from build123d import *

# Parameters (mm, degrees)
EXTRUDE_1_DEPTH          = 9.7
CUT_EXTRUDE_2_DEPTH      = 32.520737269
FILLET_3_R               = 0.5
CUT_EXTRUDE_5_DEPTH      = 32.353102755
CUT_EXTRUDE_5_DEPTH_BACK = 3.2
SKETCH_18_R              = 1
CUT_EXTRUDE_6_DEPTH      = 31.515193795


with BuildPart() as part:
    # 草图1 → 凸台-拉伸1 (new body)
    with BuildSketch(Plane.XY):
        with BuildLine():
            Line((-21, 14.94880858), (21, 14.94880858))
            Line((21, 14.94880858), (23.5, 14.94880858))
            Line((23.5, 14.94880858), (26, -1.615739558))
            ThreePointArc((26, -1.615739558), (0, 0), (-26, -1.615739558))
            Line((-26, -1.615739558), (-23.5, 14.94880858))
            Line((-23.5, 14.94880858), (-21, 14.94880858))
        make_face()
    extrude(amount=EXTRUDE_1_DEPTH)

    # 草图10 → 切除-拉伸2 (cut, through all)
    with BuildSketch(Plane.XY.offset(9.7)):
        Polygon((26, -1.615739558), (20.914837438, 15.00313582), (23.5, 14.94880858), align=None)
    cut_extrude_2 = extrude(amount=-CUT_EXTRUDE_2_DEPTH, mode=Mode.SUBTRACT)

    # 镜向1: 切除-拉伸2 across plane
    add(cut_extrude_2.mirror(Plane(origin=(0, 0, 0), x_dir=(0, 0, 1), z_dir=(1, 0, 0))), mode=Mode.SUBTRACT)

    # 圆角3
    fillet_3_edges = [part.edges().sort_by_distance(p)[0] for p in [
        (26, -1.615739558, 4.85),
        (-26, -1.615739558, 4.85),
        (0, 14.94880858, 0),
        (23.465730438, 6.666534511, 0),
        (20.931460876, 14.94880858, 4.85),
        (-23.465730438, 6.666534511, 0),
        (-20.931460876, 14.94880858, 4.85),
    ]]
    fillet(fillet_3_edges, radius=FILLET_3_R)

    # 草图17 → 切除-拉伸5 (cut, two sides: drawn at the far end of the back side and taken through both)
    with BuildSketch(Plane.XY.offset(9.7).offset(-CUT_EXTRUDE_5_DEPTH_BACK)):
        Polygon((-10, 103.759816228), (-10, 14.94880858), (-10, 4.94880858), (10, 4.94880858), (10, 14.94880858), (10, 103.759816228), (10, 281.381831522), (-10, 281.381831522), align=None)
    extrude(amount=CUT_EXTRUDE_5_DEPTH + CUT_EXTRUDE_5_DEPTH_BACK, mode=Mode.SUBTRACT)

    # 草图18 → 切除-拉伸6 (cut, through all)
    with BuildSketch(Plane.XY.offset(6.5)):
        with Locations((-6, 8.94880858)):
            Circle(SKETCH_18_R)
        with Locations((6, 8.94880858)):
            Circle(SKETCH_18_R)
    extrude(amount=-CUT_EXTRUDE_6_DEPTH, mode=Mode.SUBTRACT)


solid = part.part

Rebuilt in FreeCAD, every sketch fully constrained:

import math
import FreeCAD as App
import Part
import Sketcher
from FreeCAD import Vector
Q = App.Units.Quantity


def edges_at(feature, points):
    """Names of the edges that pass closest to the given points."""
    edges = feature.Shape.Edges
    near = lambda p: min(range(len(edges)), key=lambda i: edges[i].distToShape(Part.Vertex(*p))[0])
    return sorted({f"Edge{near(p) + 1}" for p in points})


def add_polygon(sketch, points):
    """Adds a closed chain of lines whose ends are joined by coincident constraints."""
    first, n = sketch.GeometryCount, len(points)
    for a, b in zip(points, points[1:] + points[:1]):
        sketch.addGeometry(Part.LineSegment(App.Vector(*a, 0), App.Vector(*b, 0)), False)
    for i in range(n):
        sketch.addConstraint(Sketcher.Constraint("Coincident", first + i, 2, first + (i + 1) % n, 1))

doc = App.newDocument("Part")
body = doc.addObject("PartDesign::Body", "Body")

# Sketch on XY plane
sketch1 = body.newObject("Sketcher::SketchObject", "Sketch")
sketch1.AttachmentSupport = (doc.getObject("XY_Plane"), [""])
sketch1.MapMode = "FlatFace"
sketch1.addGeometry([
    Part.LineSegment(Vector(26, -1.61574, 0), Vector(23.5, 14.948809, 0)),
    Part.LineSegment(Vector(23.5, 14.948809, 0), Vector(-23.5, 14.948809, 0)),
    Part.LineSegment(Vector(-23.5, 14.948809, 0), Vector(-26, -1.61574, 0)),
    Part.ArcOfCircle(Part.Circle(Vector(0, -210, 0), Vector(0, 0, 1), 210), math.radians(82.887988), math.radians(97.112012)),
], False)
sketch1.addConstraint([
    Sketcher.Constraint("Coincident", 0, 2, 1, 1),
    Sketcher.Constraint("Coincident", 1, 2, 2, 1),
    Sketcher.Constraint("Coincident", 2, 2, 3, 2),
    Sketcher.Constraint("Coincident", 3, 1, 0, 1),
    Sketcher.Constraint("Horizontal", 1),
    Sketcher.Constraint("Symmetric", 2, 2, 3, 1, -2),
    Sketcher.Constraint("Equal", 0, 2),
    Sketcher.Constraint("Radius", 3, Q("210 mm")),
    Sketcher.Constraint("DistanceX", 1, 2, 1, 1, Q("47 mm")),
    Sketcher.Constraint("DistanceY", 3, 3, -1, 1, Q("210 mm")),
    Sketcher.Constraint("DistanceX", 2, 2, -1, 1, Q("26 mm")),
    Sketcher.Constraint("Distance", 0, Q("16.752142 mm")),
])
pad1 = body.newObject("PartDesign::Pad", "Pad")
pad1.Profile = sketch1
pad1.Length = 9.7

# Sketch on XY plane
sketch2 = body.newObject("Sketcher::SketchObject", "Sketch001")
sketch2.AttachmentSupport = (doc.getObject("XY_Plane"), [""])
sketch2.MapMode = "FlatFace"
sketch2.AttachmentOffset = App.Placement(Vector(0, 0, 9.7), App.Rotation())
add_polygon(sketch2, [(20.914837, 15.003136), (26, -1.61574), (23.5, 14.948809)])  # lines 0-2
sketch2.addConstraint([
    Sketcher.Constraint("DistanceX", -1, 1, 0, 2, Q("26 mm")),
    Sketcher.Constraint("DistanceX", -1, 1, 1, 2, Q("23.5 mm")),
    Sketcher.Constraint("Distance", 1, Q("16.752142 mm")),
    Sketcher.Constraint("DistanceY", 0, 2, -1, 1, Q("1.61574 mm")),
    Sketcher.Constraint("Distance", 0, Q("17.379468 mm")),
    Sketcher.Constraint("Distance", 2, Q("2.585733 mm")),
])
pocket1 = body.newObject("PartDesign::Pocket", "Pocket")
pocket1.Profile = sketch2
pocket1.Type = "ThroughAll"
doc.recompute()

mirrored = body.newObject("PartDesign::Mirrored", "Mirrored")
mirrored.Originals = [pocket1]
mirrored.MirrorPlane = (doc.getObject("YZ_Plane"), [""])
body.Tip = mirrored
doc.recompute()

fillet = body.newObject("PartDesign::Fillet", "Fillet")
fillet.Base = (mirrored, edges_at(mirrored, [
    (26, -1.616, 4.85),
    (-26, -1.616, 4.85),
    (0, 14.949, 0),
    (23.466, 6.667, 0),
    (20.931, 14.949, 4.85),
    (-23.466, 6.667, 0),
    (-20.931, 14.949, 4.85),
]))
fillet.Radius = 0.5

# Sketch on XY plane
sketch3 = body.newObject("Sketcher::SketchObject", "Sketch002")
sketch3.AttachmentSupport = (doc.getObject("XY_Plane"), [""])
sketch3.MapMode = "FlatFace"
sketch3.AttachmentOffset = App.Placement(Vector(0, 0, 9.7), App.Rotation())
add_polygon(sketch3, [(-10, 4.948809), (10, 4.948809), (10, 281.381832), (-10, 281.381832)])  # lines 0-3
sketch3.addConstraint([
    Sketcher.Constraint("Horizontal", 0),
    Sketcher.Constraint("Vertical", 1),
    Sketcher.Constraint("Horizontal", 2),
    Sketcher.Constraint("Vertical", 3),
    Sketcher.Constraint("DistanceX", 0, 1, 0, 2, Q("20 mm")),
    Sketcher.Constraint("DistanceX", -1, 1, 0, 2, Q("10 mm")),
    Sketcher.Constraint("DistanceY", 1, 1, 1, 2, Q("276.433023 mm")),
    Sketcher.Constraint("DistanceY", -1, 1, 0, 2, Q("4.948809 mm")),
])
pocket2 = body.newObject("PartDesign::Pocket", "Pocket001")
pocket2.Profile = sketch3
pocket2.Type = "TwoLengths"
pocket2.Length = 32.353103
pocket2.Length2 = 3.2
pocket2.Reversed = True

# Sketch on XY plane
sketch4 = body.newObject("Sketcher::SketchObject", "Sketch003")
sketch4.AttachmentSupport = (doc.getObject("XY_Plane"), [""])
sketch4.MapMode = "FlatFace"
sketch4.AttachmentOffset = App.Placement(Vector(0, 0, 6.5), App.Rotation())
sketch4.addGeometry([
    Part.Circle(Vector(-6, 8.948809, 0), Vector(0, 0, 1), 1),
    Part.Circle(Vector(6, 8.948809, 0), Vector(0, 0, 1), 1),
], False)
sketch4.addConstraint([
    Sketcher.Constraint("Equal", 0, 1),
    Sketcher.Constraint("Symmetric", 0, 3, 1, 3, -2),
    Sketcher.Constraint("Diameter", 0, Q("2 mm")),
    Sketcher.Constraint("DistanceX", 0, 3, -1, 1, Q("6 mm")),
    Sketcher.Constraint("DistanceY", -1, 1, 0, 3, Q("8.948809 mm")),
])
pocket3 = body.newObject("PartDesign::Pocket", "Pocket002")
pocket3.Profile = sketch4
pocket3.Type = "ThroughAll"

doc.recompute()
